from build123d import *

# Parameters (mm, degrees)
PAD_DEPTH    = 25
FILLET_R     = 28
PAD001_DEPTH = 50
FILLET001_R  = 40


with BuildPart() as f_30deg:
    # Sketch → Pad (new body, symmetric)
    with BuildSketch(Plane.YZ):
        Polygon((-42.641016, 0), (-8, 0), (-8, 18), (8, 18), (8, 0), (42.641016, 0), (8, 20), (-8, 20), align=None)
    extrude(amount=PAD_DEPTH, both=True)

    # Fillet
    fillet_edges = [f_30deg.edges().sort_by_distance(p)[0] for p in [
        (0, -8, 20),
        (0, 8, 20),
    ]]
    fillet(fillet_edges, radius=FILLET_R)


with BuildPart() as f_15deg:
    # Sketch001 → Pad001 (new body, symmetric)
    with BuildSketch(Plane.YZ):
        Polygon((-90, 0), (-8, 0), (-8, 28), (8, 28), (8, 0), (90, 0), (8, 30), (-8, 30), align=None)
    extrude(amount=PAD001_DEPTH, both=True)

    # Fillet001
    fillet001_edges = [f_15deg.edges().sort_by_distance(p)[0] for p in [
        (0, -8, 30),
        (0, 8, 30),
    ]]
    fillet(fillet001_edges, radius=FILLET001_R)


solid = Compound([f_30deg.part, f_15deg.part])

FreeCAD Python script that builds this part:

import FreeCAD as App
import Part
import Sketcher
from FreeCAD import Vector
Q = App.Units.Quantity


def edges_at(feature, points):
    """Names of the edges that pass closest to the given points."""
    edges = feature.Shape.Edges
    near = lambda p: min(range(len(edges)), key=lambda i: edges[i].distToShape(Part.Vertex(*p))[0])
    return sorted({f"Edge{near(p) + 1}" for p in points})


def add_polygon(sketch, points):
    """Adds a closed chain of lines whose ends are joined by coincident constraints."""
    first, n = sketch.GeometryCount, len(points)
    for a, b in zip(points, points[1:] + points[:1]):
        sketch.addGeometry(Part.LineSegment(App.Vector(*a, 0), App.Vector(*b, 0)), False)
    for i in range(n):
        sketch.addConstraint(Sketcher.Constraint("Coincident", first + i, 2, first + (i + 1) % n, 1))

doc = App.newDocument("Part")
body = doc.addObject("PartDesign::Body", "Body")

sketch1 = body.newObject("Sketcher::SketchObject", "Sketch")
sketch1.AttachmentSupport = (doc.getObject("YZ_Plane"), [""])
sketch1.MapMode = "FlatFace"
add_polygon(sketch1, [(-43, 0), (-8, 0), (-8, 18), (8, 18), (8, 0), (43, 0), (8, 20), (-8, 20)])
sketch1.addConstraint([
    Sketcher.Constraint("Horizontal", 0),
    Sketcher.Constraint("Vertical", 1),
    Sketcher.Constraint("Horizontal", 2),
    Sketcher.Constraint("Vertical", 3),
    Sketcher.Constraint("Horizontal", 4),
    Sketcher.Constraint("Horizontal", 6),
    Sketcher.Constraint("Symmetric", 0, 2, 3, 2, -1, 1),
    Sketcher.Constraint("Symmetric", 4, 2, 7, 2, -2),
    Sketcher.Constraint("Vertical", 3, 2, 5, 2),
    Sketcher.Constraint("Vertical", 1, 2, 6, 2),
    Sketcher.Constraint("DistanceX", 2, 1, 2, 2, 16.0),
    Sketcher.Constraint("DistanceY", 1, 1, 1, 2, 18.0),
    Sketcher.Constraint("Angle", 5, Q("150 deg")),
    Sketcher.Constraint("Distance", 5, 40.0),
])
pad1 = body.newObject("PartDesign::Pad", "Pad")
pad1.Profile = sketch1
pad1.Length = 50
pad1.Midplane = True
doc.recompute()

fillet = body.newObject("PartDesign::Fillet", "Fillet")
fillet.Base = (pad1, edges_at(pad1, [(0, -8, 20), (0, 8, 20)]))
fillet.Radius = 28
body2 = doc.addObject("PartDesign::Body", "Body001")

sketch2 = body2.newObject("Sketcher::SketchObject", "Sketch001")
sketch2.AttachmentSupport = (doc.getObject("YZ_Plane001"), [""])
sketch2.MapMode = "FlatFace"
add_polygon(sketch2, [(-90, 0), (-8, 0), (-8, 28), (8, 28), (8, 0), (90, 0), (8, 30), (-8, 30)])
sketch2.addConstraint([
    Sketcher.Constraint("Horizontal", 0),
    Sketcher.Constraint("Vertical", 1),
    Sketcher.Constraint("Horizontal", 2),
    Sketcher.Constraint("Vertical", 3),
    Sketcher.Constraint("Horizontal", 4),
    Sketcher.Constraint("Horizontal", 6),
    Sketcher.Constraint("Symmetric", 0, 2, 3, 2, -1, 1),
    Sketcher.Constraint("Symmetric", 4, 2, 7, 2, -2),
    Sketcher.Constraint("Vertical", 3, 2, 5, 2),
    Sketcher.Constraint("Vertical", 1, 2, 6, 2),
    Sketcher.Constraint("DistanceX", 0, 1, 0, 2, 82.0),
    Sketcher.Constraint("DistanceX", 2, 1, 2, 2, 16.0),
    Sketcher.Constraint("DistanceY", 1, 1, 1, 2, 28.0),
    Sketcher.Constraint("DistanceY", -1, 1, 5, 2, 30.0),
])
pad2 = body2.newObject("PartDesign::Pad", "Pad001")
pad2.Profile = sketch2
pad2.Length = 100
pad2.Midplane = True
doc.recompute()

fillet2 = body2.newObject("PartDesign::Fillet", "Fillet001")
fillet2.Base = (pad2, edges_at(pad2, [(0, -8, 30), (0, 8, 30)]))
fillet2.Radius = 40

doc.recompute()
